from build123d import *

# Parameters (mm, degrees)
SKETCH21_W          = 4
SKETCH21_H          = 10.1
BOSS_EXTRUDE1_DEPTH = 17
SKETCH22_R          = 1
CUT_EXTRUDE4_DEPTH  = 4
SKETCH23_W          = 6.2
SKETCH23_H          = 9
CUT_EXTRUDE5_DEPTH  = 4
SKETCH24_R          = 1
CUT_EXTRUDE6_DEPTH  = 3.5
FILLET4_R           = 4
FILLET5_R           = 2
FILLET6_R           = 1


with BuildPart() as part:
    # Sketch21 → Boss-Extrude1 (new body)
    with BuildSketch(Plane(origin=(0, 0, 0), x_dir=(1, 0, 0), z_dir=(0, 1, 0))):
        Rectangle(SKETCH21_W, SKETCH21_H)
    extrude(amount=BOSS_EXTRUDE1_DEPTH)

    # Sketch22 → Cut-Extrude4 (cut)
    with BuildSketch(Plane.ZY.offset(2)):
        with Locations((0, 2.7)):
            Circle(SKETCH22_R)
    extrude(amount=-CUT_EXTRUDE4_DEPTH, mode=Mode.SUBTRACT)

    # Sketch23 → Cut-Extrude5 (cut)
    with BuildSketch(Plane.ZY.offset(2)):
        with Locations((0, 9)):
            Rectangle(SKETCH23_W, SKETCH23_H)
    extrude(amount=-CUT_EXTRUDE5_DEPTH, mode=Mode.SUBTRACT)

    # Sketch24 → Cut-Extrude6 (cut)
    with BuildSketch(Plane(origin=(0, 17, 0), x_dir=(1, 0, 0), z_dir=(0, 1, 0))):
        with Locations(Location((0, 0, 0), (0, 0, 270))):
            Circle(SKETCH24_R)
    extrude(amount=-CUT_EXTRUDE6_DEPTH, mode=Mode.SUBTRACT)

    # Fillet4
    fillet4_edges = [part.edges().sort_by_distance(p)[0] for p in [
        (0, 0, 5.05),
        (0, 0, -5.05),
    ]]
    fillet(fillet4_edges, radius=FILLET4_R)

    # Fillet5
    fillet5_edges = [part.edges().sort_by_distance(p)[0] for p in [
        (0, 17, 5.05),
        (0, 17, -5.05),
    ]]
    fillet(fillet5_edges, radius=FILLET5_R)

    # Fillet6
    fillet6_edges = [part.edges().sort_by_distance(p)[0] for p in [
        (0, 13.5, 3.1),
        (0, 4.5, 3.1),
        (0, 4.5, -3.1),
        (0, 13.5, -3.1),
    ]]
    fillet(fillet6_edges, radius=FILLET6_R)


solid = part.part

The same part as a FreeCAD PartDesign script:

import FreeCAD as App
import Part
import Sketcher
Q = App.Units.Quantity


def edges_at(feature, points):
    """Names of the edges that pass closest to the given points."""
    edges = feature.Shape.Edges
    near = lambda p: min(range(len(edges)), key=lambda i: edges[i].distToShape(Part.Vertex(*p))[0])
    return sorted({f"Edge{near(p) + 1}" for p in points})

doc = App.newDocument("Part")
body = doc.addObject("PartDesign::Body", "Body")

# Sketch on XZ plane
sketch1 = doc.addObject("Sketcher::SketchObject", "Sketch")
body.addObject(sketch1)
sketch1.AttachmentSupport = (doc.XZ_Plane, [""])
sketch1.MapMode = "FlatFace"
sketch1.addGeometry(Part.LineSegment(App.Vector(-2, -5, 0), App.Vector(-2, 5, 0)), False)
sketch1.addGeometry(Part.LineSegment(App.Vector(-2, 5, 0), App.Vector(2, 5, 0)), False)
sketch1.addGeometry(Part.LineSegment(App.Vector(2, 5, 0), App.Vector(2, -5, 0)), False)
sketch1.addGeometry(Part.LineSegment(App.Vector(2, -5, 0), App.Vector(-2, -5, 0)), False)
sketch1.addConstraint(Sketcher.Constraint("Coincident", 0, 2, 1, 1))
sketch1.addConstraint(Sketcher.Constraint("Coincident", 1, 2, 2, 1))
sketch1.addConstraint(Sketcher.Constraint("Coincident", 2, 2, 3, 1))
sketch1.addConstraint(Sketcher.Constraint("Coincident", 3, 2, 0, 1))
sketch1.addConstraint(Sketcher.Constraint("Vertical", 0))
sketch1.addConstraint(Sketcher.Constraint("Horizontal", 1))
sketch1.addConstraint(Sketcher.Constraint("Vertical", 2))
sketch1.addConstraint(Sketcher.Constraint("Horizontal", 3))
sketch1.addConstraint(Sketcher.Constraint("Symmetric", 0, 2, 2, 2, -1, 1))
sketch1.addConstraint(Sketcher.Constraint("DistanceX", 1, 1, 1, 2, Q("4 mm")))
sketch1.addConstraint(Sketcher.Constraint("DistanceY", 0, 1, 0, 2, Q("10.1 mm")))
pad1 = doc.addObject("PartDesign::Pad", "Pad")
body.addObject(pad1)
pad1.Profile = sketch1
pad1.Length = 17
pad1.Reversed = True

# Sketch on YZ plane
sketch2 = doc.addObject("Sketcher::SketchObject", "Sketch001")
body.addObject(sketch2)
sketch2.AttachmentSupport = (doc.YZ_Plane, [""])
sketch2.MapMode = "FlatFace"
sketch2.AttachmentOffset = App.Placement(App.Vector(0, 0, -2), App.Rotation())
sketch2.addGeometry(Part.Circle(App.Vector(2.7, 0, 0), App.Vector(0, 0, 1), 1), False)
sketch2.addConstraint(Sketcher.Constraint("PointOnObject", 0, 3, -1))
sketch2.addConstraint(Sketcher.Constraint("Diameter", 0, Q("2 mm")))
sketch2.addConstraint(Sketcher.Constraint("DistanceX", -1, 1, 0, 3, Q("2.7 mm")))
pocket1 = doc.addObject("PartDesign::Pocket", "Pocket")
body.addObject(pocket1)
pocket1.Profile = sketch2
pocket1.Length = 4
pocket1.Reversed = True

# Sketch on YZ plane
sketch3 = doc.addObject("Sketcher::SketchObject", "Sketch002")
body.addObject(sketch3)
sketch3.AttachmentSupport = (doc.YZ_Plane, [""])
sketch3.MapMode = "FlatFace"
sketch3.AttachmentOffset = App.Placement(App.Vector(0, 0, -2), App.Rotation())
sketch3.addGeometry(Part.LineSegment(App.Vector(14, -3, 0), App.Vector(4, -3, 0)), False)
sketch3.addGeometry(Part.LineSegment(App.Vector(4, -3, 0), App.Vector(4, 3, 0)), False)
sketch3.addGeometry(Part.LineSegment(App.Vector(4, 3, 0), App.Vector(14, 3, 0)), False)
sketch3.addGeometry(Part.LineSegment(App.Vector(14, 3, 0), App.Vector(14, -3, 0)), False)
sketch3.addConstraint(Sketcher.Constraint("Coincident", 0, 2, 1, 1))
sketch3.addConstraint(Sketcher.Constraint("Coincident", 1, 2, 2, 1))
sketch3.addConstraint(Sketcher.Constraint("Coincident", 2, 2, 3, 1))
sketch3.addConstraint(Sketcher.Constraint("Coincident", 3, 2, 0, 1))
sketch3.addConstraint(Sketcher.Constraint("Horizontal", 0))
sketch3.addConstraint(Sketcher.Constraint("Vertical", 1))
sketch3.addConstraint(Sketcher.Constraint("Horizontal", 2))
sketch3.addConstraint(Sketcher.Constraint("Vertical", 3))
sketch3.addConstraint(Sketcher.Constraint("DistanceX", 0, 2, 0, 1, Q("9 mm")))
sketch3.addConstraint(Sketcher.Constraint("DistanceY", 1, 1, 1, 2, Q("6.2 mm")))
sketch3.addConstraint(Sketcher.Constraint("DistanceX", -1, 1, 0, 2, Q("4.5 mm")))
sketch3.addConstraint(Sketcher.Constraint("DistanceY", 0, 2, -1, 1, Q("3.1 mm")))
pocket2 = doc.addObject("PartDesign::Pocket", "Pocket001")
body.addObject(pocket2)
pocket2.Profile = sketch3
pocket2.Length = 4
pocket2.Reversed = True

# Sketch on XZ plane
sketch4 = doc.addObject("Sketcher::SketchObject", "Sketch003")
body.addObject(sketch4)
sketch4.AttachmentSupport = (doc.XZ_Plane, [""])
sketch4.MapMode = "FlatFace"
sketch4.AttachmentOffset = App.Placement(App.Vector(0, 0, -17), App.Rotation())
sketch4.addGeometry(Part.Circle(App.Vector(0, 0, 0), App.Vector(0, 0, 1), 1), False)
sketch4.addConstraint(Sketcher.Constraint("Coincident", 0, 3, -1, 1))
sketch4.addConstraint(Sketcher.Constraint("Diameter", 0, Q("2 mm")))
pocket3 = doc.addObject("PartDesign::Pocket", "Pocket002")
body.addObject(pocket3)
pocket3.Profile = sketch4
pocket3.Length = 3.5
pocket3.Reversed = True
doc.recompute()

fillet = doc.addObject("PartDesign::Fillet", "Fillet")
body.addObject(fillet)
fillet.Base = (pocket3, edges_at(pocket3, [(0, 0, 5.05), (0, 0, -5.05)]))
fillet.Radius = 4
doc.recompute()

fillet2 = doc.addObject("PartDesign::Fillet", "Fillet001")
body.addObject(fillet2)
fillet2.Base = (fillet, edges_at(fillet, [(0, 17, 5.05), (0, 17, -5.05)]))
fillet2.Radius = 2
doc.recompute()

fillet3 = doc.addObject("PartDesign::Fillet", "Fillet002")
body.addObject(fillet3)
fillet3.Base = (fillet2, edges_at(fillet2, [
    (0, 13.5, 3.1),
    (0, 4.5, 3.1),
    (0, 4.5, -3.1),
    (0, 13.5, -3.1),
]))
fillet3.Radius = 1

doc.recompute()
